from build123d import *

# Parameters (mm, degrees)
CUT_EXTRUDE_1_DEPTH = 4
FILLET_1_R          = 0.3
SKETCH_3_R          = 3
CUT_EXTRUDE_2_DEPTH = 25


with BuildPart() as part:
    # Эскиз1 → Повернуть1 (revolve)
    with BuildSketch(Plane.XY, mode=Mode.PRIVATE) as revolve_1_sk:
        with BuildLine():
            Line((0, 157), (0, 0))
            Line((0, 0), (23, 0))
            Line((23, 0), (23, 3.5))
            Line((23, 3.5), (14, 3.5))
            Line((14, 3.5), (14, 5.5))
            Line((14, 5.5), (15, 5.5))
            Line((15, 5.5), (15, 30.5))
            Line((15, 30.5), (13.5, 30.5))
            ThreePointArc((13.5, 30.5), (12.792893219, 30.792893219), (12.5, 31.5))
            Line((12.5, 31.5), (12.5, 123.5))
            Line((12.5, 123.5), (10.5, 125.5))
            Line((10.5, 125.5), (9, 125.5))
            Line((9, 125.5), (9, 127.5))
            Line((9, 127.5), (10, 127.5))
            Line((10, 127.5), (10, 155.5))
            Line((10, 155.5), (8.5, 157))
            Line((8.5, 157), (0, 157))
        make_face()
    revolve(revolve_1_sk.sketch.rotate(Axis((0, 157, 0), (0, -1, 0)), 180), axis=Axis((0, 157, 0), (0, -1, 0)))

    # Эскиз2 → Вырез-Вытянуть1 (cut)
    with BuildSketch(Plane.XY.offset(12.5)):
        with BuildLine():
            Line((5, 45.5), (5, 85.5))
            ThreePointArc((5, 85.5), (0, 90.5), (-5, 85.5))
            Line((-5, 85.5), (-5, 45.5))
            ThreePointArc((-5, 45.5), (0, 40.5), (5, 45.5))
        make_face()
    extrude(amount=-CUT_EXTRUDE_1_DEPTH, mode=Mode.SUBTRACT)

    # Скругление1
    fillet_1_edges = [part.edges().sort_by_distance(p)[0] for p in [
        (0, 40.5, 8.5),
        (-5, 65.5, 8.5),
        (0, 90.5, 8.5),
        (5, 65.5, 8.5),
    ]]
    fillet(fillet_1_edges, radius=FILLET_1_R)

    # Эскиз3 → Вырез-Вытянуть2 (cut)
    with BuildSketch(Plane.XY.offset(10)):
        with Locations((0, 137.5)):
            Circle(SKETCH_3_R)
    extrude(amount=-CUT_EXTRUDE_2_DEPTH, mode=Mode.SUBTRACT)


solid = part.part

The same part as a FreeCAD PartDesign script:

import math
import FreeCAD as App
import Part
import Sketcher
Q = App.Units.Quantity


def edges_at(feature, points):
    """Names of the edges that pass closest to the given points."""
    edges = feature.Shape.Edges
    near = lambda p: min(range(len(edges)), key=lambda i: edges[i].distToShape(Part.Vertex(*p))[0])
    return sorted({f"Edge{near(p) + 1}" for p in points})

doc = App.newDocument("Part")
body = doc.addObject("PartDesign::Body", "Body")

sketch1 = body.newObject("Sketcher::SketchObject", "Sketch")
sketch1.AttachmentSupport = (doc.getObject("XY_Plane"), [""])
sketch1.MapMode = "FlatFace"
sketch1.addGeometry([
    Part.LineSegment(App.Vector(0, 157, 0), App.Vector(0, 0, 0)),
    Part.LineSegment(App.Vector(0, 0, 0), App.Vector(23, 0, 0)),
    Part.LineSegment(App.Vector(23, 0, 0), App.Vector(23, 3.5, 0)),
    Part.LineSegment(App.Vector(23, 3.5, 0), App.Vector(14, 3.5, 0)),
    Part.LineSegment(App.Vector(14, 3.5, 0), App.Vector(14, 5.5, 0)),
    Part.LineSegment(App.Vector(14, 5.5, 0), App.Vector(15, 5.5, 0)),
    Part.LineSegment(App.Vector(15, 5.5, 0), App.Vector(15, 30.5, 0)),
    Part.LineSegment(App.Vector(15, 30.5, 0), App.Vector(13.5, 30.5, 0)),
    Part.ArcOfCircle(Part.Circle(App.Vector(13.5, 31.5, 0), App.Vector(0, 0, 1), 1), math.radians(-180), math.radians(-90)),
    Part.LineSegment(App.Vector(12.5, 31.5, 0), App.Vector(12.5, 123.5, 0)),
    Part.LineSegment(App.Vector(12.5, 123.5, 0), App.Vector(10.5, 125.5, 0)),
    Part.LineSegment(App.Vector(10.5, 125.5, 0), App.Vector(9, 125.5, 0)),
    Part.LineSegment(App.Vector(9, 125.5, 0), App.Vector(9, 127.5, 0)),
    Part.LineSegment(App.Vector(9, 127.5, 0), App.Vector(10, 127.5, 0)),
    Part.LineSegment(App.Vector(10, 127.5, 0), App.Vector(10, 155.5, 0)),
    Part.LineSegment(App.Vector(10, 155.5, 0), App.Vector(8.5, 157, 0)),
    Part.LineSegment(App.Vector(8.5, 157, 0), App.Vector(0, 157, 0)),
], False)
sketch1.addConstraint([
    Sketcher.Constraint("Coincident", 0, 2, 1, 1),
    Sketcher.Constraint("Coincident", 1, 2, 2, 1),
    Sketcher.Constraint("Coincident", 2, 2, 3, 1),
    Sketcher.Constraint("Coincident", 3, 2, 4, 1),
    Sketcher.Constraint("Coincident", 4, 2, 5, 1),
    Sketcher.Constraint("Coincident", 5, 2, 6, 1),
    Sketcher.Constraint("Coincident", 6, 2, 7, 1),
    Sketcher.Constraint("Tangent", 7, 2, 8, 2),
    Sketcher.Constraint("Tangent", 8, 1, 9, 1),
    Sketcher.Constraint("Coincident", 9, 2, 10, 1),
    Sketcher.Constraint("Coincident", 10, 2, 11, 1),
    Sketcher.Constraint("Coincident", 11, 2, 12, 1),
    Sketcher.Constraint("Coincident", 12, 2, 13, 1),
    Sketcher.Constraint("Coincident", 13, 2, 14, 1),
    Sketcher.Constraint("Coincident", 14, 2, 15, 1),
    Sketcher.Constraint("Coincident", 15, 2, 16, 1),
    Sketcher.Constraint("Coincident", 16, 2, 0, 1),
    Sketcher.Constraint("Vertical", 0),
    Sketcher.Constraint("Horizontal", 1),
    Sketcher.Constraint("Vertical", 2),
    Sketcher.Constraint("Horizontal", 3),
    Sketcher.Constraint("Vertical", 4),
    Sketcher.Constraint("Horizontal", 5),
    Sketcher.Constraint("Vertical", 6),
    Sketcher.Constraint("Horizontal", 7),
    Sketcher.Constraint("Vertical", 9),
    Sketcher.Constraint("Horizontal", 11),
    Sketcher.Constraint("Vertical", 12),
    Sketcher.Constraint("Horizontal", 13),
    Sketcher.Constraint("Vertical", 14),
    Sketcher.Constraint("Horizontal", 16),
    Sketcher.Constraint("Coincident", 0, 2, -1, 1),
    Sketcher.Constraint("Parallel", 10, 15),
    Sketcher.Constraint("Equal", 7, 11),
    Sketcher.Constraint("Equal", 5, 13),
    Sketcher.Constraint("Equal", 4, 12),
    Sketcher.Constraint("Radius", 8, 1.0),
    Sketcher.Constraint("DistanceX", 1, 1, 1, 2, 23.0),
    Sketcher.Constraint("DistanceX", 3, 2, 3, 1, 9.0),
    Sketcher.Constraint("DistanceX", 5, 1, 5, 2, 1.0),
    Sketcher.Constraint("DistanceY", 0, 2, 0, 1, 157.0),
    Sketcher.Constraint("DistanceY", 4, 1, 4, 2, 2.0),
    Sketcher.Constraint("DistanceY", 6, 1, 6, 2, 25.0),
    Sketcher.Constraint("DistanceY", 9, 1, 9, 2, 92.0),
    Sketcher.Constraint("DistanceY", 14, 1, 14, 2, 28.0),
    Sketcher.Constraint("Angle", 10, Q("135 deg")),
    Sketcher.Constraint("DistanceX", 7, 2, 7, 1, 1.5),
    Sketcher.Constraint("DistanceX", 16, 2, 16, 1, 8.5),
    Sketcher.Constraint("DistanceX", -1, 1, 11, 2, 9.0),
])
revolution = body.newObject("PartDesign::Revolution", "Revolution")
revolution.Profile = sketch1
revolution.ReferenceAxis = (sketch1, ["V_Axis"])
revolution.Angle = 360

sketch2 = body.newObject("Sketcher::SketchObject", "Sketch001")
sketch2.AttachmentSupport = (doc.getObject("XY_Plane"), [""])
sketch2.MapMode = "FlatFace"
sketch2.AttachmentOffset = App.Placement(App.Vector(0, 0, 12.5), App.Rotation())
sketch2.addGeometry([
    Part.LineSegment(App.Vector(5, 46, 0), App.Vector(5, 86, 0)),
    Part.ArcOfCircle(Part.Circle(App.Vector(0, 86, 0), App.Vector(0, 0, 1), 5), math.radians(0), math.radians(180)),
    Part.LineSegment(App.Vector(-5, 86, 0), App.Vector(-5, 46, 0)),
    Part.ArcOfCircle(Part.Circle(App.Vector(0, 46, 0), App.Vector(0, 0, 1), 5), math.radians(180), math.radians(360)),
], False)
sketch2.addConstraint([
    Sketcher.Constraint("Tangent", 0, 2, 1, 1),
    Sketcher.Constraint("Tangent", 1, 2, 2, 1),
    Sketcher.Constraint("Tangent", 2, 2, 3, 1),
    Sketcher.Constraint("Tangent", 3, 2, 0, 1),
    Sketcher.Constraint("Vertical", 0),
    Sketcher.Constraint("Vertical", 2),
    Sketcher.Constraint("PointOnObject", 1, 3, -2),
    Sketcher.Constraint("Radius", 1, 5.0),
    Sketcher.Constraint("DistanceY", 0, 1, 0, 2, 40.0),
    Sketcher.Constraint("DistanceY", -1, 1, 1, 3, 85.5),
])
pocket1 = body.newObject("PartDesign::Pocket", "Pocket")
pocket1.Profile = sketch2
pocket1.Length = 4
doc.recompute()

fillet = body.newObject("PartDesign::Fillet", "Fillet")
fillet.Base = (pocket1, edges_at(pocket1, [
    (0, 40.5, 8.5),
    (-5, 65.5, 8.5),
    (0, 90.5, 8.5),
    (5, 65.5, 8.5),
]))
fillet.Radius = 0.3

sketch3 = body.newObject("Sketcher::SketchObject", "Sketch002")
sketch3.AttachmentSupport = (doc.getObject("XY_Plane"), [""])
sketch3.MapMode = "FlatFace"
sketch3.AttachmentOffset = App.Placement(App.Vector(0, 0, 10), App.Rotation())
sketch3.addGeometry(Part.Circle(App.Vector(0, 137.5, 0), App.Vector(0, 0, 1), 3), False)
sketch3.addConstraint([
    Sketcher.Constraint("PointOnObject", 0, 3, -2),
    Sketcher.Constraint("Diameter", 0, 6.0),
    Sketcher.Constraint("DistanceY", -1, 1, 0, 3, 137.5),
])
pocket2 = body.newObject("PartDesign::Pocket", "Pocket001")
pocket2.Profile = sketch3
pocket2.Length = 25

doc.recompute()
